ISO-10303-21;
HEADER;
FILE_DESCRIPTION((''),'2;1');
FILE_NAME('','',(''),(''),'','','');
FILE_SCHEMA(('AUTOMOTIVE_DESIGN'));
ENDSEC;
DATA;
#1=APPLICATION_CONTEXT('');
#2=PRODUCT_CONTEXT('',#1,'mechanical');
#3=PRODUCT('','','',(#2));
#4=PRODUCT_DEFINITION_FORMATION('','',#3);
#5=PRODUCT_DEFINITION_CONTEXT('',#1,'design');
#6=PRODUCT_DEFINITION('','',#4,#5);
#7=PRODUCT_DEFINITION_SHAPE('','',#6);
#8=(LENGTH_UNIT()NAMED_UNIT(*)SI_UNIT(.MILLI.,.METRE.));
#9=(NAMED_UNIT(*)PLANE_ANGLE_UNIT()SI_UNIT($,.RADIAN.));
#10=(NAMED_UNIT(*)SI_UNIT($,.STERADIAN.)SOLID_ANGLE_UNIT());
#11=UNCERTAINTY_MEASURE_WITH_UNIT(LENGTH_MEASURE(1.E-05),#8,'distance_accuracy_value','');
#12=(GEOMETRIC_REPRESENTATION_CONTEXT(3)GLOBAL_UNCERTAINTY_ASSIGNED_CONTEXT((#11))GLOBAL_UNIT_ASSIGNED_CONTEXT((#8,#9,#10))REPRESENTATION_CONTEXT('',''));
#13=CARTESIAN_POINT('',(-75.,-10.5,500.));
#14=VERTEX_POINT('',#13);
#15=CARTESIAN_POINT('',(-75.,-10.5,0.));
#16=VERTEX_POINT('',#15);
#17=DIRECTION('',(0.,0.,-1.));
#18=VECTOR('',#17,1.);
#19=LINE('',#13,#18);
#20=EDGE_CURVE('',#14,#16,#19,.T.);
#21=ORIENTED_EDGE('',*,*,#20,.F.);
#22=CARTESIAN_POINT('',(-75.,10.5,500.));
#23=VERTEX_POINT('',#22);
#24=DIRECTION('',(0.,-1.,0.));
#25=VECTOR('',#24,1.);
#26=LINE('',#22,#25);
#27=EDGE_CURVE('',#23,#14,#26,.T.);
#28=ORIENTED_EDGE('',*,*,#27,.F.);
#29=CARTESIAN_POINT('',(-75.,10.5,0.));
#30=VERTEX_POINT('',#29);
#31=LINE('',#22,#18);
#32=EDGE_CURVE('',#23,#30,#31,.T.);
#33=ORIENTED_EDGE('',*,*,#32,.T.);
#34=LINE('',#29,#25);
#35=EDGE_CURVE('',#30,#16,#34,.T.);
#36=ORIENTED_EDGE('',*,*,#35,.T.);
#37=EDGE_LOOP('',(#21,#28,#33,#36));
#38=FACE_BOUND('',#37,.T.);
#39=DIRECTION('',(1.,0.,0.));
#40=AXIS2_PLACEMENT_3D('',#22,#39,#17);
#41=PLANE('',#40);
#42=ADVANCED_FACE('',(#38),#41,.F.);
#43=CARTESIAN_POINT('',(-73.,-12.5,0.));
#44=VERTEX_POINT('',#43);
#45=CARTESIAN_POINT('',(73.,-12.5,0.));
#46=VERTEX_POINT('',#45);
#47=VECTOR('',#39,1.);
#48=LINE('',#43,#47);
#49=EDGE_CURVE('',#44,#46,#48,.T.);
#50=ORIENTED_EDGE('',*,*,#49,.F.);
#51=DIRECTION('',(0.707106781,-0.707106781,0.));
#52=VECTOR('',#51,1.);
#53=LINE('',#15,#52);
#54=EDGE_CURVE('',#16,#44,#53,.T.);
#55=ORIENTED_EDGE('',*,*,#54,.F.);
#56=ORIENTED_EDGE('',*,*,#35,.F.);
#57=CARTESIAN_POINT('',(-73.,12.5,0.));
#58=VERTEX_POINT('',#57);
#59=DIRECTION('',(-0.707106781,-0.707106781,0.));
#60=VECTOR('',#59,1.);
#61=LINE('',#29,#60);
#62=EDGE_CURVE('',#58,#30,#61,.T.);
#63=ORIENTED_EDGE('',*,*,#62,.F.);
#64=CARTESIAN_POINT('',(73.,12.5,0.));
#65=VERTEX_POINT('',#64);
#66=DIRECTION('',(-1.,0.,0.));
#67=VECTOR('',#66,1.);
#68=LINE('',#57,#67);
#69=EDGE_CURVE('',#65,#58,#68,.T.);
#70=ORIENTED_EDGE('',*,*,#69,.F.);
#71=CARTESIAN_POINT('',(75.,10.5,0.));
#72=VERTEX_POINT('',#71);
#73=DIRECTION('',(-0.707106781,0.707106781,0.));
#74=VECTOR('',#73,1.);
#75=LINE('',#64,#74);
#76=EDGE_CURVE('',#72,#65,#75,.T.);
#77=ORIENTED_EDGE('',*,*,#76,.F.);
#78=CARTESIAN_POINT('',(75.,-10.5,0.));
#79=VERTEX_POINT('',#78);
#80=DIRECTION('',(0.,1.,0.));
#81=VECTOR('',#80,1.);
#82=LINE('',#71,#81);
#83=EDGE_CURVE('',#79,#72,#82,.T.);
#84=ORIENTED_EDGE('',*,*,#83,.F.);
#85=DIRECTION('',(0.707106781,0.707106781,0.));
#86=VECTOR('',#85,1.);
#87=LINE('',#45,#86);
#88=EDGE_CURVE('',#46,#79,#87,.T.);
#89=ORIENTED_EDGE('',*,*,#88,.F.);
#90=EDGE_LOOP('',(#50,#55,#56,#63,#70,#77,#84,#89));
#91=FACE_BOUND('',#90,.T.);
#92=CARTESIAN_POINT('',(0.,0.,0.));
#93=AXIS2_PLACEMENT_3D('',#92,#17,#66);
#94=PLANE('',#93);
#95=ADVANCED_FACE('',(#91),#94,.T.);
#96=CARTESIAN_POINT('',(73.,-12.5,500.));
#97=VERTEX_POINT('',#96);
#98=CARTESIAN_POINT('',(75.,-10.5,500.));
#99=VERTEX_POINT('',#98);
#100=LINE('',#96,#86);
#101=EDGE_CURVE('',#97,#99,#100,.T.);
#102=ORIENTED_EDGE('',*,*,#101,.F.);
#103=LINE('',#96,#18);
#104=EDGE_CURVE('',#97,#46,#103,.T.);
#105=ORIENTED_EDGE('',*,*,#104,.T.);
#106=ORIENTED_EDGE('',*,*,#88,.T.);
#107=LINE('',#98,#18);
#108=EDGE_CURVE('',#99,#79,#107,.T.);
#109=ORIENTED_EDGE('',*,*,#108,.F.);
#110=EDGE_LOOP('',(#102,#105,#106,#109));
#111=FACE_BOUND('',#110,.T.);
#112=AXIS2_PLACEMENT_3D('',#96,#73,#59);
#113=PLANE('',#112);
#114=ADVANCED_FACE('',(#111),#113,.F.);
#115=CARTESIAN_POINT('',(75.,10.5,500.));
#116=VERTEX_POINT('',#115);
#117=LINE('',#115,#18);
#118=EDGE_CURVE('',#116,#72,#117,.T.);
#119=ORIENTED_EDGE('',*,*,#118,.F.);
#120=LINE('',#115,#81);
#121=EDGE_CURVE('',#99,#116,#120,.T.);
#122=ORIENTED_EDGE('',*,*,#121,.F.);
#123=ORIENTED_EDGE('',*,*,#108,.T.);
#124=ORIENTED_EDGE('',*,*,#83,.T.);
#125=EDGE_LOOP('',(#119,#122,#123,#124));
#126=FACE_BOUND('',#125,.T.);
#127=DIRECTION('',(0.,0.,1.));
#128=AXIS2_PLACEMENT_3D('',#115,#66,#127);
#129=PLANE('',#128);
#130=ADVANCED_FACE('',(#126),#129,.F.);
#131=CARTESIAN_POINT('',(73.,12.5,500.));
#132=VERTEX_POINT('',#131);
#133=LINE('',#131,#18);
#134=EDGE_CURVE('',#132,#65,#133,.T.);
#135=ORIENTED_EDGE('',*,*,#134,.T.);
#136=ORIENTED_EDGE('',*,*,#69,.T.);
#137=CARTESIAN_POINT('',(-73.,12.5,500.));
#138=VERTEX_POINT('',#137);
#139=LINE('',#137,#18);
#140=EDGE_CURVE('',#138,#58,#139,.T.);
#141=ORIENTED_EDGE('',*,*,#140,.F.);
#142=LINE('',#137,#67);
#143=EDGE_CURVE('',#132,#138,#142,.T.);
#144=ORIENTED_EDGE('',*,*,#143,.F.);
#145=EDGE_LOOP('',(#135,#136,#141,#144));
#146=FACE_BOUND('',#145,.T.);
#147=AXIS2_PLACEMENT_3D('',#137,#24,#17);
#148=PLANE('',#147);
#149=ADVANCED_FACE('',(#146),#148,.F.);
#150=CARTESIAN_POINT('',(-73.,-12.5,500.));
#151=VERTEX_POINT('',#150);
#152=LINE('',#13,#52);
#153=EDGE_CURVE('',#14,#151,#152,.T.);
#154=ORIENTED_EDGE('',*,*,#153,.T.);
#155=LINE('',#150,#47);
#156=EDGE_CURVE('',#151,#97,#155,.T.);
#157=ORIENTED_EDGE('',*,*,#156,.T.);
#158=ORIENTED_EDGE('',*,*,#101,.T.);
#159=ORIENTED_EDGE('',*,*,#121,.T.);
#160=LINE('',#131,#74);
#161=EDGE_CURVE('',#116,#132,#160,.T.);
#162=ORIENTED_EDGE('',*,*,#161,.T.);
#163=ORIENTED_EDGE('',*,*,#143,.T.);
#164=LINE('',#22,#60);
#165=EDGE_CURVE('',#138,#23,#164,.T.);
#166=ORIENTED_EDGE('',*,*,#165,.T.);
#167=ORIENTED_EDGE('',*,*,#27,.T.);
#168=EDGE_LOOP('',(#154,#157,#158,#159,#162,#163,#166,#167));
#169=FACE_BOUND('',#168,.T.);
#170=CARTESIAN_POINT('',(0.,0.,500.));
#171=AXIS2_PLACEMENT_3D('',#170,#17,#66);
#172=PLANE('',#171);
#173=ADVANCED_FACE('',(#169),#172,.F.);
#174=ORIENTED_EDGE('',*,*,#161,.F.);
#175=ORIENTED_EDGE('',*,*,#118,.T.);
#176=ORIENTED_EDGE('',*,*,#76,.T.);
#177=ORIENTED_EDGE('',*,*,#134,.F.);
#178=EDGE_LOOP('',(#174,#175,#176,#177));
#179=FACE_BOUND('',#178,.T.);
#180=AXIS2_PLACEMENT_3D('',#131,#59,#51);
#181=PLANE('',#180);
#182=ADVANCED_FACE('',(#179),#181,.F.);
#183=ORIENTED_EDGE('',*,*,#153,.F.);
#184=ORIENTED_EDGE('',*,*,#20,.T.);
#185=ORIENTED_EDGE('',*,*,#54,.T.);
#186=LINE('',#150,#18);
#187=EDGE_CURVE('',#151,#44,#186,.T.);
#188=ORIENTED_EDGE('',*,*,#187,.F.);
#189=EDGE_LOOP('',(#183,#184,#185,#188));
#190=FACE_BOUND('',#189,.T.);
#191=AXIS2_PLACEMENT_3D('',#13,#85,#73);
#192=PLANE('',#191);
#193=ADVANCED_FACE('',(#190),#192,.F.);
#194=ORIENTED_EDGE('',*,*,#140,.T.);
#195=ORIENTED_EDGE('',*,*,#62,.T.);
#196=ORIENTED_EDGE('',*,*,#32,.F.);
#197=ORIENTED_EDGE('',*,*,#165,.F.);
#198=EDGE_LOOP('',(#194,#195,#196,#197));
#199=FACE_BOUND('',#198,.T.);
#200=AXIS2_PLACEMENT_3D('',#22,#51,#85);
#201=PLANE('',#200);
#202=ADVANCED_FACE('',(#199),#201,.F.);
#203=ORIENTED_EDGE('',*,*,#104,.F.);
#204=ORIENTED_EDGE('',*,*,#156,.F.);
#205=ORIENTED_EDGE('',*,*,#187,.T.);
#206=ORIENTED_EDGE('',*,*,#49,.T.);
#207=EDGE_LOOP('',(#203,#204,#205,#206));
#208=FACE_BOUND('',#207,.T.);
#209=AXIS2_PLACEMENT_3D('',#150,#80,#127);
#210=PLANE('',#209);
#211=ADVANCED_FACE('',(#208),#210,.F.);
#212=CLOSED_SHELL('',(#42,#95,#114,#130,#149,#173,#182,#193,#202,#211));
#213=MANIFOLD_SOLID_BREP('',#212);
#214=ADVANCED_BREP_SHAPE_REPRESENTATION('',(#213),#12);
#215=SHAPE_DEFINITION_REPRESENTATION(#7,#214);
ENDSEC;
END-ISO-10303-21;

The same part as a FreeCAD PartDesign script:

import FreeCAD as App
import Part
import Sketcher
from FreeCAD import Vector

doc = App.newDocument("Part")
body = doc.addObject("PartDesign::Body", "Body")

# Sketch on XY plane
sketch1 = body.newObject("Sketcher::SketchObject", "Sketch")
sketch1.AttachmentSupport = (doc.getObject("XY_Plane"), [""])
sketch1.MapMode = "FlatFace"
sketch1.addGeometry([
    Part.LineSegment(Vector(-73, 12.5, 0), Vector(-75, 10.5, 0)),  # 0
    Part.LineSegment(Vector(-75, 10.5, 0), Vector(-75, -10.5, 0)),  # 1
    Part.LineSegment(Vector(-75, -10.5, 0), Vector(-73, -12.5, 0)),  # 2
    Part.LineSegment(Vector(-73, -12.5, 0), Vector(73, -12.5, 0)),  # 3
    Part.LineSegment(Vector(73, -12.5, 0), Vector(75, -10.5, 0)),  # 4
    Part.LineSegment(Vector(75, -10.5, 0), Vector(75, 10.5, 0)),  # 5
    Part.LineSegment(Vector(75, 10.5, 0), Vector(73, 12.5, 0)),  # 6
    Part.LineSegment(Vector(73, 12.5, 0), Vector(-73, 12.5, 0)),  # 7
], False)
sketch1.addConstraint([
    Sketcher.Constraint("Coincident", 0, 2, 1, 1),
    Sketcher.Constraint("Coincident", 1, 2, 2, 1),
    Sketcher.Constraint("Coincident", 2, 2, 3, 1),
    Sketcher.Constraint("Coincident", 3, 2, 4, 1),
    Sketcher.Constraint("Coincident", 4, 2, 5, 1),
    Sketcher.Constraint("Coincident", 5, 2, 6, 1),
    Sketcher.Constraint("Coincident", 6, 2, 7, 1),
    Sketcher.Constraint("Coincident", 7, 2, 0, 1),
    Sketcher.Constraint("Vertical", 1),
    Sketcher.Constraint("Horizontal", 3),
    Sketcher.Constraint("Vertical", 5),
    Sketcher.Constraint("Horizontal", 7),
    Sketcher.Constraint("Symmetric", 0, 2, 4, 2, -1, 1),
    Sketcher.Constraint("Symmetric", 2, 2, 6, 2, -1, 1),
    Sketcher.Constraint("Perpendicular", 0, 2),
    Sketcher.Constraint("Perpendicular", 2, 4),
    Sketcher.Constraint("Perpendicular", 4, 6),
    Sketcher.Constraint("Horizontal", 1, 2, 4, 2),
    Sketcher.Constraint("Vertical", 3, 2, 6, 2),
    Sketcher.Constraint("DistanceX", 3, 1, 3, 2, 146.0),
    Sketcher.Constraint("DistanceY", 1, 2, 1, 1, 21.0),
    Sketcher.Constraint("DistanceX", 0, 2, -1, 1, 75.0),
])
pad1 = body.newObject("PartDesign::Pad", "Pad")
pad1.Profile = sketch1
pad1.Length = 500

doc.recompute()
